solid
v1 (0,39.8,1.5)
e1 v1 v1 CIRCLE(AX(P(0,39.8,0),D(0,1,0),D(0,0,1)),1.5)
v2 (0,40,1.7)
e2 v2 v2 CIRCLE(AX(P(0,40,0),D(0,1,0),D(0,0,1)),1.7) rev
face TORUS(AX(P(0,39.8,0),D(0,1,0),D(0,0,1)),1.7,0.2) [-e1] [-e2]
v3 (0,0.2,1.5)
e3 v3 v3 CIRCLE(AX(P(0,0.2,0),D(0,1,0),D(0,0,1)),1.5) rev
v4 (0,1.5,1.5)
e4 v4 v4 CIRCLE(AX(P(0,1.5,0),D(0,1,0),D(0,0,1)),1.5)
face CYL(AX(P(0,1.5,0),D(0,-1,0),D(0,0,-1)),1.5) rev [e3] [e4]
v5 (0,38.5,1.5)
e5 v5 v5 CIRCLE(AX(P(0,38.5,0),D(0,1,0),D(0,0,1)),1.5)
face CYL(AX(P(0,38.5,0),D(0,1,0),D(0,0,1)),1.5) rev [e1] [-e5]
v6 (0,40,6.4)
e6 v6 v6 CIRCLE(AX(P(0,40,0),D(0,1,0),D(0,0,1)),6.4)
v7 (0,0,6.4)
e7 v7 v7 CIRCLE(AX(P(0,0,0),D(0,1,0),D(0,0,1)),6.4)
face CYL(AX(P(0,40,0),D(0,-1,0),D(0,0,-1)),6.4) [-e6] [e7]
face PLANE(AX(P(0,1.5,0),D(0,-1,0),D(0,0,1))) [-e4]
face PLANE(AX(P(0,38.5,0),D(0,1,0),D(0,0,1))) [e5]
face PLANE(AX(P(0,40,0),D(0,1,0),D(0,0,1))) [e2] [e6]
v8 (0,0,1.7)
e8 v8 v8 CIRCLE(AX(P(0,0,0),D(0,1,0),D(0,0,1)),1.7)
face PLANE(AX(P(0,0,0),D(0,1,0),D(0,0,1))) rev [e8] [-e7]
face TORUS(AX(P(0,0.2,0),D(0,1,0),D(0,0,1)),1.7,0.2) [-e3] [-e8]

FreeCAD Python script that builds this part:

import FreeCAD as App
import Part
import Sketcher

V = App.Vector
Q = App.Units.Quantity


def edges_at(feature, points):
    """Names of the edges that pass closest to the given points."""
    edges = feature.Shape.Edges
    near = lambda p: min(range(len(edges)), key=lambda i: edges[i].distToShape(Part.Vertex(*p))[0])
    return sorted({f"Edge{near(p) + 1}" for p in points})

doc = App.newDocument("Part")
body = doc.addObject("PartDesign::Body", "Body")

# Sketch on XZ plane
sketch1 = doc.addObject("Sketcher::SketchObject", "Sketch")
body.addObject(sketch1)
sketch1.AttachmentSupport = (doc.XZ_Plane, [""])
sketch1.MapMode = "FlatFace"
sketch1.addGeometry(Part.Circle(V(0, 0, 0), V(0, 0, 1), 6), False)
sketch1.addConstraint([
    Sketcher.Constraint("Coincident", 0, 3, -1, 1),
    Sketcher.Constraint("Diameter", 0, Q("12.8 mm")),
])
pad1 = doc.addObject("PartDesign::Pad", "Pad")
body.addObject(pad1)
pad1.Profile = sketch1
pad1.Length = 40
pad1.Reversed = True

# Sketch on XZ plane
sketch2 = doc.addObject("Sketcher::SketchObject", "Sketch001")
body.addObject(sketch2)
sketch2.AttachmentSupport = (doc.XZ_Plane, [""])
sketch2.MapMode = "FlatFace"
sketch2.AttachmentOffset = App.Placement(V(0, 0, -40), App.Rotation())
sketch2.addGeometry(Part.Circle(V(0, 0, 0), V(0, 0, 1), 1.5), False)
sketch2.addConstraint([
    Sketcher.Constraint("Coincident", 0, 3, -1, 1),
    Sketcher.Constraint("Diameter", 0, Q("3 mm")),
])
pocket1 = doc.addObject("PartDesign::Pocket", "Pocket")
body.addObject(pocket1)
pocket1.Profile = sketch2
pocket1.Length = 1.5
pocket1.Reversed = True
doc.recompute()

datumplane = doc.addObject("PartDesign::Plane", "DatumPlane")
body.addObject(datumplane)
datumplane.AttachmentSupport = (doc.XZ_Plane, [""])
datumplane.MapMode = "FlatFace"
datumplane.AttachmentOffset = App.Placement(V(0, 0, -20), App.Rotation())
mirrored = doc.addObject("PartDesign::Mirrored", "Mirrored")
body.addObject(mirrored)
mirrored.Originals = [pocket1]
mirrored.MirrorPlane = (datumplane, [""])
body.Tip = mirrored
doc.recompute()

fillet = doc.addObject("PartDesign::Fillet", "Fillet")
body.addObject(fillet)
fillet.Base = (mirrored, edges_at(mirrored, [(0, 0, -1.5), (0, 40, -1.5)]))
fillet.Radius = 0.2

doc.recompute()
